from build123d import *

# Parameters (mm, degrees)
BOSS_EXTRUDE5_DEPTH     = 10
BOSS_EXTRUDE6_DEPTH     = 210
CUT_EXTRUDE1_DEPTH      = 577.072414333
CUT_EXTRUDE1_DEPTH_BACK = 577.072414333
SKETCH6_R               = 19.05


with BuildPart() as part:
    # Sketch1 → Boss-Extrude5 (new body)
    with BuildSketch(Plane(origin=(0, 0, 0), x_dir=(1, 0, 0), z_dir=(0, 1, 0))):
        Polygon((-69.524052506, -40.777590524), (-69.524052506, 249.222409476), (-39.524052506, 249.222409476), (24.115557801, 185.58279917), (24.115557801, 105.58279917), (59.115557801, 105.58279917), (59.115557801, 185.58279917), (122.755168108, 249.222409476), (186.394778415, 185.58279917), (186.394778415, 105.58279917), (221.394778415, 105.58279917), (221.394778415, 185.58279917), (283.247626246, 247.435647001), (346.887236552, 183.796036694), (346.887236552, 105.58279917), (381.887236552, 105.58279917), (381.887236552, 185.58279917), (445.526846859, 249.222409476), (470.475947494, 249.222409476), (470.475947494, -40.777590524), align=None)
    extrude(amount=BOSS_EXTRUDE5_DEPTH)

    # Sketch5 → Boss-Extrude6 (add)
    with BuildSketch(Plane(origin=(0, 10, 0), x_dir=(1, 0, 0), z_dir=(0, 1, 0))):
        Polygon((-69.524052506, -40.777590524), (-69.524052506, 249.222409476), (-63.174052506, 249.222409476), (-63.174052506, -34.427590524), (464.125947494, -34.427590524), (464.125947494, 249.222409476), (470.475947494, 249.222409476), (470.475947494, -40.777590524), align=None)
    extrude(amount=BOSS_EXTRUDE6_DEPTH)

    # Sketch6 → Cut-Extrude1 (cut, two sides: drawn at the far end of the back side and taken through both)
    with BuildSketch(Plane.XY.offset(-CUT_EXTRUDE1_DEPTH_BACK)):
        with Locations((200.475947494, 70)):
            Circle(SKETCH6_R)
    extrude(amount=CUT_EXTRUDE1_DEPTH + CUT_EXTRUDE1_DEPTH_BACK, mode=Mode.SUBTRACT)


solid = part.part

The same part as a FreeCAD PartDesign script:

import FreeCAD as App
import Part
import Sketcher

V = App.Vector
Q = App.Units.Quantity


def add_polygon(sketch, points):
    """Adds a closed chain of lines whose ends are joined by coincident constraints."""
    first, n = sketch.GeometryCount, len(points)
    for a, b in zip(points, points[1:] + points[:1]):
        sketch.addGeometry(Part.LineSegment(App.Vector(*a, 0), App.Vector(*b, 0)), False)
    for i in range(n):
        sketch.addConstraint(Sketcher.Constraint("Coincident", first + i, 2, first + (i + 1) % n, 1))

doc = App.newDocument("Part")
body = doc.addObject("PartDesign::Body", "Body")

# Sketch on XZ plane
sketch1 = doc.addObject("Sketcher::SketchObject", "Sketch")
body.addObject(sketch1)
sketch1.AttachmentSupport = (doc.XZ_Plane, [""])
sketch1.MapMode = "FlatFace"
add_polygon(sketch1, [(-69.524053, -249.222409), (-69.524053, 40.777591), (470.475947, 40.777591), (470.475947, -249.222409), (445.526847, -249.222409), (381.887237, -185.582799), (381.887237, -105.582799), (346.887237, -105.582799), (346.887237, -183.796037), (283.247626, -247.435647), (221.394778, -185.582799), (221.394778, -105.582799), (186.394778, -105.582799), (186.394778, -185.582799), (122.755168, -249.222409), (59.115558, -185.582799), (59.115558, -105.582799), (24.115558, -105.582799), (24.115558, -185.582799), (-39.524053, -249.222409)])  # lines 0-19
sketch1.addConstraint([
    Sketcher.Constraint("Vertical", 0),
    Sketcher.Constraint("Horizontal", 1),
    Sketcher.Constraint("Vertical", 2),
    Sketcher.Constraint("Horizontal", 3),
    Sketcher.Constraint("Vertical", 5),
    Sketcher.Constraint("Horizontal", 6),
    Sketcher.Constraint("Vertical", 7),
    Sketcher.Constraint("Vertical", 10),
    Sketcher.Constraint("Horizontal", 11),
    Sketcher.Constraint("Vertical", 12),
    Sketcher.Constraint("Vertical", 15),
    Sketcher.Constraint("Horizontal", 16),
    Sketcher.Constraint("Vertical", 17),
    Sketcher.Constraint("Horizontal", 19),
    Sketcher.Constraint("Perpendicular", 4, 8),
    Sketcher.Constraint("Perpendicular", 8, 9),
    Sketcher.Constraint("Perpendicular", 9, 13),
    Sketcher.Constraint("Perpendicular", 13, 14),
    Sketcher.Constraint("Perpendicular", 14, 18),
    Sketcher.Constraint("Horizontal", 4, 2, 9, 2),
    Sketcher.Constraint("Horizontal", 6, 2, 10, 2),
    Sketcher.Constraint("Horizontal", 9, 2, 12, 2),
    Sketcher.Constraint("Horizontal", 3, 2, 13, 2),
    Sketcher.Constraint("Horizontal", 12, 2, 14, 2),
    Sketcher.Constraint("Horizontal", 11, 2, 15, 2),
    Sketcher.Constraint("Horizontal", 14, 2, 17, 2),
    Sketcher.Constraint("Horizontal", 13, 2, 18, 2),
    Sketcher.Constraint("Equal", 6, 11),
    Sketcher.Constraint("Equal", 11, 16),
    Sketcher.Constraint("Equal", 4, 8),
    Sketcher.Constraint("Equal", 8, 13),
    Sketcher.Constraint("DistanceX", 1, 1, 1, 2, Q("540 mm")),
    Sketcher.Constraint("DistanceX", 6, 2, 6, 1, Q("35 mm")),
    Sketcher.Constraint("DistanceX", 19, 2, 19, 1, Q("30 mm")),
    Sketcher.Constraint("DistanceY", 0, 1, 0, 2, Q("290 mm")),
    Sketcher.Constraint("DistanceY", 5, 1, 5, 2, Q("80 mm")),
    Sketcher.Constraint("Distance", 4, Q("90 mm")),
    Sketcher.Constraint("DistanceX", 3, 2, 3, 1, Q("24.949101 mm")),
    Sketcher.Constraint("DistanceY", 4, 2, -1, 1, Q("185.582799 mm")),
    Sketcher.Constraint("DistanceX", -1, 1, 9, 2, Q("221.394778 mm")),
])
pad1 = doc.addObject("PartDesign::Pad", "Pad")
body.addObject(pad1)
pad1.Profile = sketch1
pad1.Length = 10
pad1.Reversed = True

# Sketch on XZ plane
sketch2 = doc.addObject("Sketcher::SketchObject", "Sketch001")
body.addObject(sketch2)
sketch2.AttachmentSupport = (doc.XZ_Plane, [""])
sketch2.MapMode = "FlatFace"
sketch2.AttachmentOffset = App.Placement(V(0, 0, -10), App.Rotation())
add_polygon(sketch2, [(-69.524053, -249.222409), (-69.524053, 40.777591), (470.475947, 40.777591), (470.475947, -249.222409), (464.125947, -249.222409), (464.125947, 34.427591), (-63.174053, 34.427591), (-63.174053, -249.222409)])  # lines 0-7
sketch2.addConstraint([
    Sketcher.Constraint("Vertical", 0),
    Sketcher.Constraint("Horizontal", 1),
    Sketcher.Constraint("Vertical", 2),
    Sketcher.Constraint("Horizontal", 3),
    Sketcher.Constraint("Vertical", 4),
    Sketcher.Constraint("Horizontal", 5),
    Sketcher.Constraint("Vertical", 6),
    Sketcher.Constraint("Horizontal", 7),
    Sketcher.Constraint("Horizontal", 3, 2, 6, 2),
    Sketcher.Constraint("Equal", 3, 7),
    Sketcher.Constraint("DistanceX", 1, 1, 1, 2, Q("540 mm")),
    Sketcher.Constraint("DistanceY", 0, 1, 0, 2, Q("290 mm")),
    Sketcher.Constraint("DistanceX", 5, 2, 5, 1, Q("527.3 mm")),
    Sketcher.Constraint("DistanceY", 4, 1, 4, 2, Q("283.65 mm")),
    Sketcher.Constraint("DistanceY", -1, 1, 0, 2, Q("40.777591 mm")),
    Sketcher.Constraint("DistanceX", 0, 2, -1, 1, Q("69.524053 mm")),
])
pad2 = doc.addObject("PartDesign::Pad", "Pad001")
body.addObject(pad2)
pad2.Profile = sketch2
pad2.Length = 210
pad2.Reversed = True

# Sketch on XY plane
sketch3 = doc.addObject("Sketcher::SketchObject", "Sketch002")
body.addObject(sketch3)
sketch3.AttachmentSupport = (doc.XY_Plane, [""])
sketch3.MapMode = "FlatFace"
sketch3.addGeometry(Part.Circle(V(200.475947, 70, 0), V(0, 0, 1), 19.05), False)
sketch3.addConstraint([
    Sketcher.Constraint("Diameter", 0, Q("38.1 mm")),
    Sketcher.Constraint("DistanceY", -1, 1, 0, 3, Q("70 mm")),
    Sketcher.Constraint("DistanceX", -1, 1, 0, 3, Q("200.475947 mm")),
])
pocket1 = doc.addObject("PartDesign::Pocket", "Pocket")
body.addObject(pocket1)
pocket1.Profile = sketch3
pocket1.Type = "ThroughAll"
pocket1.Midplane = True

doc.recompute()
